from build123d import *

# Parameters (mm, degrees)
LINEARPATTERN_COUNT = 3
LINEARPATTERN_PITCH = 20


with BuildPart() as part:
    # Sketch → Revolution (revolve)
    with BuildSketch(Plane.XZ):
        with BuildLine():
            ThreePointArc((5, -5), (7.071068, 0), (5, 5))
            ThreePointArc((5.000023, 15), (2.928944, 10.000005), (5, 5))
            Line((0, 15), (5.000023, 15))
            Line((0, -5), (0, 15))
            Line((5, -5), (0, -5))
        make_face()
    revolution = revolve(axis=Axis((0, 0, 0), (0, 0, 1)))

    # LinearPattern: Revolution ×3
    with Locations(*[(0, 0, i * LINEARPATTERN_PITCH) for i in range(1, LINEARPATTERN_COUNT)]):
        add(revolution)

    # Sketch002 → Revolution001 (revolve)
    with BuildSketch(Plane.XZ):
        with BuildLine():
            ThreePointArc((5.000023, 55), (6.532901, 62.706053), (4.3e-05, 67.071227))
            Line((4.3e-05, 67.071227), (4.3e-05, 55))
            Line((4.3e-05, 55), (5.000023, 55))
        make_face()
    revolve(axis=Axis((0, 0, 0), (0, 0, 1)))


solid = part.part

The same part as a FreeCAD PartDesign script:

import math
import FreeCAD as App
import Part
import Sketcher
from FreeCAD import Vector

doc = App.newDocument("Part")
body = doc.addObject("PartDesign::Body", "Body")

sketch1 = body.newObject("Sketcher::SketchObject", "Sketch")
sketch1.AttachmentSupport = (doc.getObject("XZ_Plane"), [""])
sketch1.MapMode = "FlatFace"
sketch1.addGeometry(Part.ArcOfCircle(Part.Circle(Vector(0, 0, 0), Vector(0, 0, 1), 7), math.radians(-45), math.radians(45)), False)
sketch1.addGeometry(Part.ArcOfCircle(Part.Circle(Vector(10, 10, 0), Vector(0, 0, 1), 7), math.radians(135), math.radians(225)), False)
sketch1.addGeometry(Part.LineSegment(Vector(5, 15, 0), Vector(0, 15, 0)), False)
sketch1.addGeometry(Part.LineSegment(Vector(0, 15, 0), Vector(0, -5, 0)), False)
sketch1.addGeometry(Part.LineSegment(Vector(0, -5, 0), Vector(5, -5, 0)), False)
sketch1.addConstraint(Sketcher.Constraint("Coincident", 0, 2, 1, 2))
sketch1.addConstraint(Sketcher.Constraint("Coincident", 1, 1, 2, 1))
sketch1.addConstraint(Sketcher.Constraint("Coincident", 2, 2, 3, 1))
sketch1.addConstraint(Sketcher.Constraint("Coincident", 3, 2, 4, 1))
sketch1.addConstraint(Sketcher.Constraint("Coincident", 4, 2, 0, 1))
sketch1.addConstraint(Sketcher.Constraint("Horizontal", 2))
sketch1.addConstraint(Sketcher.Constraint("Vertical", 3))
sketch1.addConstraint(Sketcher.Constraint("Horizontal", 4))
sketch1.addConstraint(Sketcher.Constraint("Coincident", 0, 3, -1, 1))
sketch1.addConstraint(Sketcher.Constraint("Equal", 0, 1))
sketch1.addConstraint(Sketcher.Constraint("PointOnObject", 2, 2, -2))
sketch1.addConstraint(Sketcher.Constraint("Vertical", 0, 2, 4, 2))
sketch1.addConstraint(Sketcher.Constraint("DistanceX", 4, 1, 4, 2, 5.0))
sketch1.addConstraint(Sketcher.Constraint("DistanceY", 3, 2, 3, 1, 20.0))
sketch1.addConstraint(Sketcher.Constraint("DistanceY", -1, 1, 0, 2, 5.0))
sketch1.addConstraint(Sketcher.Constraint("DistanceX", 2, 2, 2, 1, 5.000023))
revolution = body.newObject("PartDesign::Revolution", "Revolution")
revolution.Profile = sketch1
revolution.ReferenceAxis = (sketch1, ["V_Axis"])
revolution.Angle = 360
doc.recompute()

linearpattern = body.newObject("PartDesign::LinearPattern", "LinearPattern")
linearpattern.Originals = [revolution]
linearpattern.Direction = (doc.getObject("Z_Axis"), [""])
linearpattern.Mode = "offset"
linearpattern.Offset = 20
linearpattern.Occurrences = 3
body.Tip = linearpattern

sketch2 = body.newObject("Sketcher::SketchObject", "Sketch001")
sketch2.AttachmentSupport = (doc.getObject("XZ_Plane"), [""])
sketch2.MapMode = "FlatFace"
sketch2.addGeometry(Part.ArcOfCircle(Part.Circle(Vector(0, 60, 0), Vector(0, 0, 1), 7.1), math.radians(-45), math.radians(90)), False)
sketch2.addGeometry(Part.LineSegment(Vector(0, 67.1, 0), Vector(0, 55, 0)), False)
sketch2.addGeometry(Part.LineSegment(Vector(0, 55, 0), Vector(5, 55, 0)), False)
sketch2.addConstraint(Sketcher.Constraint("Coincident", 0, 2, 1, 1))
sketch2.addConstraint(Sketcher.Constraint("Coincident", 1, 2, 2, 1))
sketch2.addConstraint(Sketcher.Constraint("Coincident", 2, 2, 0, 1))
sketch2.addConstraint(Sketcher.Constraint("Vertical", 1))
sketch2.addConstraint(Sketcher.Constraint("Horizontal", 2))
sketch2.addConstraint(Sketcher.Constraint("PointOnObject", 0, 3, -2))
sketch2.addConstraint(Sketcher.Constraint("DistanceY", -1, 1, 1, 2, 55.0))
sketch2.addConstraint(Sketcher.Constraint("Radius", 0, 7.071143))
sketch2.addConstraint(Sketcher.Constraint("DistanceX", 2, 1, 2, 2, 4.99998))
sketch2.addConstraint(Sketcher.Constraint("DistanceY", 1, 2, 1, 1, 12.071227))
revolution2 = body.newObject("PartDesign::Revolution", "Revolution001")
revolution2.Profile = sketch2
revolution2.ReferenceAxis = (sketch2, ["V_Axis"])
revolution2.Angle = 360

doc.recompute()
